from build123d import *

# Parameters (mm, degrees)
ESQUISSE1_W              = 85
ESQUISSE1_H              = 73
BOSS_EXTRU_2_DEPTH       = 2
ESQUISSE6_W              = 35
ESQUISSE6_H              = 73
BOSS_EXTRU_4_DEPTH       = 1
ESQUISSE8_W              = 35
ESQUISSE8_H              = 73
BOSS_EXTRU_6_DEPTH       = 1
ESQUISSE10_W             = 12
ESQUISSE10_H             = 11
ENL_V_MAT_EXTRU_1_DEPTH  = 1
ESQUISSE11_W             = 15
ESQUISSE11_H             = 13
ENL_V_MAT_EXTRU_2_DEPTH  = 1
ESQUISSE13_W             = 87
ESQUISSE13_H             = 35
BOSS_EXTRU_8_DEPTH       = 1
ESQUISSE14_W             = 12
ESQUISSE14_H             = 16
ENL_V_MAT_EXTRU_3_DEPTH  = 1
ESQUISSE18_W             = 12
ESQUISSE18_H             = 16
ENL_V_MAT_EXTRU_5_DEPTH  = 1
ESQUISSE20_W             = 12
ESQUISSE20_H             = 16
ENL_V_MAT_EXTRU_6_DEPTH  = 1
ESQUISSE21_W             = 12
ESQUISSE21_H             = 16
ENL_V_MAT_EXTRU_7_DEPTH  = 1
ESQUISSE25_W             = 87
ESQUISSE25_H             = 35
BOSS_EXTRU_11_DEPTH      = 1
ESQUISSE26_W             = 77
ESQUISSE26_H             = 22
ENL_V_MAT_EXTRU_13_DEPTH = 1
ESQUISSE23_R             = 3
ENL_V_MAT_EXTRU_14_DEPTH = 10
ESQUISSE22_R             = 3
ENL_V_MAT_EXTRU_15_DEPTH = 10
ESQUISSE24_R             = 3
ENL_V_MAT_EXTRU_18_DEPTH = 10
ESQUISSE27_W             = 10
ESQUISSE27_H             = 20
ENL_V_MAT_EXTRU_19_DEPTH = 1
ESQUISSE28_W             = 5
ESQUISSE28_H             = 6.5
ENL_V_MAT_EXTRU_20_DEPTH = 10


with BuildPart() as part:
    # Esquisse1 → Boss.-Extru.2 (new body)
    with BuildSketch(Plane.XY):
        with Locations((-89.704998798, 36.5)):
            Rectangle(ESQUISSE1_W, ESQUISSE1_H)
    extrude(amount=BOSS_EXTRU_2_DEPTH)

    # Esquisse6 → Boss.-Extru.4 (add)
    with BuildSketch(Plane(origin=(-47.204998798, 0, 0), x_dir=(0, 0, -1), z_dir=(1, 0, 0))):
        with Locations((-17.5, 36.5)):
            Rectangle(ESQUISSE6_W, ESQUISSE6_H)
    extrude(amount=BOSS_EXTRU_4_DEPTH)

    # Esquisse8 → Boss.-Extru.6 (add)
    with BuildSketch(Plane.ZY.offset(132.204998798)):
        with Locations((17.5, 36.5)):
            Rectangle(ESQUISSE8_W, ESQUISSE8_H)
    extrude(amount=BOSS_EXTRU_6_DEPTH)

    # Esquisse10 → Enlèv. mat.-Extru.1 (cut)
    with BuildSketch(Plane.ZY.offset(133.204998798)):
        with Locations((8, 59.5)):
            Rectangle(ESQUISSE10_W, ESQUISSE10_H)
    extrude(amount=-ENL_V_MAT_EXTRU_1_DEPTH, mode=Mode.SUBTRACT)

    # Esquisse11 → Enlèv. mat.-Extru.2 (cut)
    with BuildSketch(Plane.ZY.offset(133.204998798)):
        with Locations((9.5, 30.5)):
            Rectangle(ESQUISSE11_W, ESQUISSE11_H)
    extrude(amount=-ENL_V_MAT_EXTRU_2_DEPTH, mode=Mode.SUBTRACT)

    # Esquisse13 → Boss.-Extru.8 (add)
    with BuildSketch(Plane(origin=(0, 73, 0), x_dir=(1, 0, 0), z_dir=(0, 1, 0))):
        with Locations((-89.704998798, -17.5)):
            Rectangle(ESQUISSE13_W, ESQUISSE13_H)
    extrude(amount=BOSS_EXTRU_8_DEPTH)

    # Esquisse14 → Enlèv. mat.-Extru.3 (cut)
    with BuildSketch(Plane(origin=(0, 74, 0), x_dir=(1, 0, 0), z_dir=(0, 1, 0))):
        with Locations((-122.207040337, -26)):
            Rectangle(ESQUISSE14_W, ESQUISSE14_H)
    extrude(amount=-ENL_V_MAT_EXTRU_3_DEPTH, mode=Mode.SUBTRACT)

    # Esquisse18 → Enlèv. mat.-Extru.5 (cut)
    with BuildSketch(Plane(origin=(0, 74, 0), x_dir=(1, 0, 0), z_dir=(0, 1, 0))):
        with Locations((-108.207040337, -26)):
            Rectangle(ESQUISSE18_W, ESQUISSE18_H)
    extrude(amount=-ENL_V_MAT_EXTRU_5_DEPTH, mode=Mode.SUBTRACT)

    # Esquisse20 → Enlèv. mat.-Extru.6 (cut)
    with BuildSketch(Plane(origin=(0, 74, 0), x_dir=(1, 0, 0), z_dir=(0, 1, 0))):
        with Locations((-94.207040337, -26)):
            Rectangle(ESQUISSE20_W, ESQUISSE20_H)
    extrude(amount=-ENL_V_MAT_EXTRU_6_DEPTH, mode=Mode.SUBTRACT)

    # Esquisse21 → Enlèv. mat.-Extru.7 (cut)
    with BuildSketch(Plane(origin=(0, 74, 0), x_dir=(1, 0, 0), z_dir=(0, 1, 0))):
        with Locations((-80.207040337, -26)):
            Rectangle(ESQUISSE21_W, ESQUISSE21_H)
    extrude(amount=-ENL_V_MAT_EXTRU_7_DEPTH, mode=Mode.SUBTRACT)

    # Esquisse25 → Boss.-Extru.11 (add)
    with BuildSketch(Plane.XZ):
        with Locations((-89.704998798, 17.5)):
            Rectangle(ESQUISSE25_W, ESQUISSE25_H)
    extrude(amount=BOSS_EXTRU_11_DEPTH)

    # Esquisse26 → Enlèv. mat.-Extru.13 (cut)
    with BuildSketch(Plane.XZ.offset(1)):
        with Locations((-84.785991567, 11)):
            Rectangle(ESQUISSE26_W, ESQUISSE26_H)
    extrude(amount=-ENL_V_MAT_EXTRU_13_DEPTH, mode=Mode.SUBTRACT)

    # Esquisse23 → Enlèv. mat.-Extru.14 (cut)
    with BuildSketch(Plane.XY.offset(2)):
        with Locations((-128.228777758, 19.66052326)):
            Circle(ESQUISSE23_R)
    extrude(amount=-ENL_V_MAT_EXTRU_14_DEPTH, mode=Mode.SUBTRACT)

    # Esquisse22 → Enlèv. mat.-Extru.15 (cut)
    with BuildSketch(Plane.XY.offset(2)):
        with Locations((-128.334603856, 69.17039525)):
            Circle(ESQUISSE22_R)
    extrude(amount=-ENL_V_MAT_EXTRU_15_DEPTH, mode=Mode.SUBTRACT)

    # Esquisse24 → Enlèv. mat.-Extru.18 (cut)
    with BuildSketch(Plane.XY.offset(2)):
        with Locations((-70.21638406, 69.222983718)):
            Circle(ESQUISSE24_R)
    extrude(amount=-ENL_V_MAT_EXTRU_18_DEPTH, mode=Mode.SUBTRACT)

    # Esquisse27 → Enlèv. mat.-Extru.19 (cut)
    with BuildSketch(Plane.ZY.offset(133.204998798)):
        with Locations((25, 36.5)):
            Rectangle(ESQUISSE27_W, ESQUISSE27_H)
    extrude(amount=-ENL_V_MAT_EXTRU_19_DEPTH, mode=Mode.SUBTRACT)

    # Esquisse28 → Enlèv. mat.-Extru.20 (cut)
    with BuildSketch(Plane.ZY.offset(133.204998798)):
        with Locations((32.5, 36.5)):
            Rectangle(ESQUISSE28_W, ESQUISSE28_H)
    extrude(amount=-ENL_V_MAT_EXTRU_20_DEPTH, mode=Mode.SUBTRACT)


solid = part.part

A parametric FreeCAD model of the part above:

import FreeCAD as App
import Part
import Sketcher
from FreeCAD import Vector
Q = App.Units.Quantity


def add_polygon(sketch, points):
    """Adds a closed chain of lines whose ends are joined by coincident constraints."""
    first, n = sketch.GeometryCount, len(points)
    for a, b in zip(points, points[1:] + points[:1]):
        sketch.addGeometry(Part.LineSegment(App.Vector(*a, 0), App.Vector(*b, 0)), False)
    for i in range(n):
        sketch.addConstraint(Sketcher.Constraint("Coincident", first + i, 2, first + (i + 1) % n, 1))

doc = App.newDocument("Part")
body = doc.addObject("PartDesign::Body", "Body")

# Sketch on XY plane
sketch1 = body.newObject("Sketcher::SketchObject", "Sketch")
sketch1.AttachmentSupport = (doc.getObject("XY_Plane"), [""])
sketch1.MapMode = "FlatFace"
add_polygon(sketch1, [(-132, 73), (-132, 0), (-47, 0), (-47, 73)])  # lines 0-3
sketch1.addConstraint([
    Sketcher.Constraint("Vertical", 0),
    Sketcher.Constraint("Horizontal", 1),
    Sketcher.Constraint("Vertical", 2),
    Sketcher.Constraint("Horizontal", 3),
    Sketcher.Constraint("PointOnObject", 0, 2, -1),
    Sketcher.Constraint("DistanceX", 1, 1, 1, 2, Q("85 mm")),
    Sketcher.Constraint("DistanceY", 0, 2, 0, 1, Q("73 mm")),
    Sketcher.Constraint("DistanceX", 0, 2, -1, 1, Q("132.204999 mm")),
])
pad1 = body.newObject("PartDesign::Pad", "Pad")
pad1.Profile = sketch1
pad1.Length = 2

# Sketch on YZ plane
sketch2 = body.newObject("Sketcher::SketchObject", "Sketch001")
sketch2.AttachmentSupport = (doc.getObject("YZ_Plane"), [""])
sketch2.MapMode = "FlatFace"
sketch2.AttachmentOffset = App.Placement(Vector(0, 0, -47.204999), App.Rotation())
add_polygon(sketch2, [(73, 35), (0, 35), (0, 0), (73, 0)])  # lines 0-3
sketch2.addConstraint([
    Sketcher.Constraint("Horizontal", 0),
    Sketcher.Constraint("Vertical", 1),
    Sketcher.Constraint("Horizontal", 2),
    Sketcher.Constraint("Vertical", 3),
    Sketcher.Constraint("Coincident", 1, 2, -1, 1),
    Sketcher.Constraint("DistanceX", 0, 2, 0, 1, Q("73 mm")),
    Sketcher.Constraint("DistanceY", 1, 2, 1, 1, Q("35 mm")),
])
pad2 = body.newObject("PartDesign::Pad", "Pad001")
pad2.Profile = sketch2
pad2.Length = 1

# Sketch on YZ plane
sketch3 = body.newObject("Sketcher::SketchObject", "Sketch002")
sketch3.AttachmentSupport = (doc.getObject("YZ_Plane"), [""])
sketch3.MapMode = "FlatFace"
sketch3.AttachmentOffset = App.Placement(Vector(0, 0, -132.204999), App.Rotation())
add_polygon(sketch3, [(73, 0), (0, 0), (0, 35), (73, 35)])  # lines 0-3
sketch3.addConstraint([
    Sketcher.Constraint("Horizontal", 0),
    Sketcher.Constraint("Vertical", 1),
    Sketcher.Constraint("Horizontal", 2),
    Sketcher.Constraint("Vertical", 3),
    Sketcher.Constraint("Coincident", 0, 2, -1, 1),
    Sketcher.Constraint("DistanceX", 0, 2, 0, 1, Q("73 mm")),
    Sketcher.Constraint("DistanceY", 1, 1, 1, 2, Q("35 mm")),
])
pad3 = body.newObject("PartDesign::Pad", "Pad002")
pad3.Profile = sketch3
pad3.Length = 1
pad3.Reversed = True

# Sketch on YZ plane
sketch4 = body.newObject("Sketcher::SketchObject", "Sketch003")
sketch4.AttachmentSupport = (doc.getObject("YZ_Plane"), [""])
sketch4.MapMode = "FlatFace"
sketch4.AttachmentOffset = App.Placement(Vector(0, 0, -133.204999), App.Rotation())
add_polygon(sketch4, [(65, 2), (54, 2), (54, 14), (65, 14)])  # lines 0-3
sketch4.addConstraint([
    Sketcher.Constraint("Horizontal", 0),
    Sketcher.Constraint("Vertical", 1),
    Sketcher.Constraint("Horizontal", 2),
    Sketcher.Constraint("Vertical", 3),
    Sketcher.Constraint("DistanceX", 0, 2, 0, 1, Q("11 mm")),
    Sketcher.Constraint("DistanceY", 1, 1, 1, 2, Q("12 mm")),
    Sketcher.Constraint("DistanceX", -1, 1, 0, 2, Q("54 mm")),
    Sketcher.Constraint("DistanceY", -1, 1, 0, 2, Q("2 mm")),
])
pocket1 = body.newObject("PartDesign::Pocket", "Pocket")
pocket1.Profile = sketch4
pocket1.Length = 1
pocket1.Reversed = True

# Sketch on YZ plane
sketch5 = body.newObject("Sketcher::SketchObject", "Sketch004")
sketch5.AttachmentSupport = (doc.getObject("YZ_Plane"), [""])
sketch5.MapMode = "FlatFace"
sketch5.AttachmentOffset = App.Placement(Vector(0, 0, -133.204999), App.Rotation())
add_polygon(sketch5, [(37, 2), (24, 2), (24, 17), (37, 17)])  # lines 0-3
sketch5.addConstraint([
    Sketcher.Constraint("Horizontal", 0),
    Sketcher.Constraint("Vertical", 1),
    Sketcher.Constraint("Horizontal", 2),
    Sketcher.Constraint("Vertical", 3),
    Sketcher.Constraint("DistanceX", 0, 2, 0, 1, Q("13 mm")),
    Sketcher.Constraint("DistanceY", 1, 1, 1, 2, Q("15 mm")),
    Sketcher.Constraint("DistanceX", -1, 1, 0, 2, Q("24 mm")),
    Sketcher.Constraint("DistanceY", -1, 1, 0, 2, Q("2 mm")),
])
pocket2 = body.newObject("PartDesign::Pocket", "Pocket001")
pocket2.Profile = sketch5
pocket2.Length = 1
pocket2.Reversed = True

# Sketch on XZ plane
sketch6 = body.newObject("Sketcher::SketchObject", "Sketch005")
sketch6.AttachmentSupport = (doc.getObject("XZ_Plane"), [""])
sketch6.MapMode = "FlatFace"
sketch6.AttachmentOffset = App.Placement(Vector(0, 0, -73), App.Rotation())
add_polygon(sketch6, [(-133, 0), (-133, 35), (-46, 35), (-46, 0)])  # lines 0-3
sketch6.addConstraint([
    Sketcher.Constraint("Vertical", 0),
    Sketcher.Constraint("Horizontal", 1),
    Sketcher.Constraint("Vertical", 2),
    Sketcher.Constraint("Horizontal", 3),
    Sketcher.Constraint("PointOnObject", 2, 2, -1),
    Sketcher.Constraint("DistanceX", 1, 1, 1, 2, Q("87 mm")),
    Sketcher.Constraint("DistanceY", 0, 1, 0, 2, Q("35 mm")),
    Sketcher.Constraint("DistanceX", 0, 2, -1, 1, Q("133.204999 mm")),
])
pad4 = body.newObject("PartDesign::Pad", "Pad003")
pad4.Profile = sketch6
pad4.Length = 1
pad4.Reversed = True

# Sketch on XZ plane
sketch7 = body.newObject("Sketcher::SketchObject", "Sketch006")
sketch7.AttachmentSupport = (doc.getObject("XZ_Plane"), [""])
sketch7.MapMode = "FlatFace"
sketch7.AttachmentOffset = App.Placement(Vector(0, 0, -74), App.Rotation())
add_polygon(sketch7, [(-128, 18), (-128, 34), (-116, 34), (-116, 18)])  # lines 0-3
sketch7.addConstraint([
    Sketcher.Constraint("Vertical", 0),
    Sketcher.Constraint("Horizontal", 1),
    Sketcher.Constraint("Vertical", 2),
    Sketcher.Constraint("Horizontal", 3),
    Sketcher.Constraint("DistanceX", 1, 1, 1, 2, Q("12 mm")),
    Sketcher.Constraint("DistanceY", 0, 1, 0, 2, Q("16 mm")),
    Sketcher.Constraint("DistanceY", -1, 1, 0, 2, Q("34 mm")),
    Sketcher.Constraint("DistanceX", 0, 2, -1, 1, Q("128.20704 mm")),
])
pocket3 = body.newObject("PartDesign::Pocket", "Pocket002")
pocket3.Profile = sketch7
pocket3.Length = 1
pocket3.Reversed = True

# Sketch on XZ plane
sketch8 = body.newObject("Sketcher::SketchObject", "Sketch007")
sketch8.AttachmentSupport = (doc.getObject("XZ_Plane"), [""])
sketch8.MapMode = "FlatFace"
sketch8.AttachmentOffset = App.Placement(Vector(0, 0, -74), App.Rotation())
add_polygon(sketch8, [(-114, 18), (-114, 34), (-102, 34), (-102, 18)])  # lines 0-3
sketch8.addConstraint([
    Sketcher.Constraint("Vertical", 0),
    Sketcher.Constraint("Horizontal", 1),
    Sketcher.Constraint("Vertical", 2),
    Sketcher.Constraint("Horizontal", 3),
    Sketcher.Constraint("DistanceX", 1, 1, 1, 2, Q("12 mm")),
    Sketcher.Constraint("DistanceY", 0, 1, 0, 2, Q("16 mm")),
    Sketcher.Constraint("DistanceY", -1, 1, 0, 2, Q("34 mm")),
    Sketcher.Constraint("DistanceX", 0, 2, -1, 1, Q("114.20704 mm")),
])
pocket4 = body.newObject("PartDesign::Pocket", "Pocket003")
pocket4.Profile = sketch8
pocket4.Length = 1
pocket4.Reversed = True

# Sketch on XZ plane
sketch9 = body.newObject("Sketcher::SketchObject", "Sketch008")
sketch9.AttachmentSupport = (doc.getObject("XZ_Plane"), [""])
sketch9.MapMode = "FlatFace"
sketch9.AttachmentOffset = App.Placement(Vector(0, 0, -74), App.Rotation())
add_polygon(sketch9, [(-100, 18), (-100, 34), (-88, 34), (-88, 18)])  # lines 0-3
sketch9.addConstraint([
    Sketcher.Constraint("Vertical", 0),
    Sketcher.Constraint("Horizontal", 1),
    Sketcher.Constraint("Vertical", 2),
    Sketcher.Constraint("Horizontal", 3),
    Sketcher.Constraint("DistanceX", 1, 1, 1, 2, Q("12 mm")),
    Sketcher.Constraint("DistanceY", 0, 1, 0, 2, Q("16 mm")),
    Sketcher.Constraint("DistanceY", -1, 1, 0, 2, Q("34 mm")),
    Sketcher.Constraint("DistanceX", 0, 2, -1, 1, Q("100.20704 mm")),
])
pocket5 = body.newObject("PartDesign::Pocket", "Pocket004")
pocket5.Profile = sketch9
pocket5.Length = 1
pocket5.Reversed = True

# Sketch on XZ plane
sketch10 = body.newObject("Sketcher::SketchObject", "Sketch009")
sketch10.AttachmentSupport = (doc.getObject("XZ_Plane"), [""])
sketch10.MapMode = "FlatFace"
sketch10.AttachmentOffset = App.Placement(Vector(0, 0, -74), App.Rotation())
add_polygon(sketch10, [(-86, 18), (-86, 34), (-74, 34), (-74, 18)])  # lines 0-3
sketch10.addConstraint([
    Sketcher.Constraint("Vertical", 0),
    Sketcher.Constraint("Horizontal", 1),
    Sketcher.Constraint("Vertical", 2),
    Sketcher.Constraint("Horizontal", 3),
    Sketcher.Constraint("DistanceX", 1, 1, 1, 2, Q("12 mm")),
    Sketcher.Constraint("DistanceY", 0, 1, 0, 2, Q("16 mm")),
    Sketcher.Constraint("DistanceY", -1, 1, 0, 2, Q("34 mm")),
    Sketcher.Constraint("DistanceX", 0, 2, -1, 1, Q("86.20704 mm")),
])
pocket6 = body.newObject("PartDesign::Pocket", "Pocket005")
pocket6.Profile = sketch10
pocket6.Length = 1
pocket6.Reversed = True

# Sketch on XZ plane
sketch11 = body.newObject("Sketcher::SketchObject", "Sketch010")
sketch11.AttachmentSupport = (doc.getObject("XZ_Plane"), [""])
sketch11.MapMode = "FlatFace"
add_polygon(sketch11, [(-133, 35), (-133, 0), (-46, 0), (-46, 35)])  # lines 0-3
sketch11.addConstraint([
    Sketcher.Constraint("Vertical", 0),
    Sketcher.Constraint("Horizontal", 1),
    Sketcher.Constraint("Vertical", 2),
    Sketcher.Constraint("Horizontal", 3),
    Sketcher.Constraint("PointOnObject", 0, 2, -1),
    Sketcher.Constraint("DistanceX", 1, 1, 1, 2, Q("87 mm")),
    Sketcher.Constraint("DistanceY", 0, 2, 0, 1, Q("35 mm")),
    Sketcher.Constraint("DistanceX", 0, 2, -1, 1, Q("133.204999 mm")),
])
pad5 = body.newObject("PartDesign::Pad", "Pad004")
pad5.Profile = sketch11
pad5.Length = 1

# Sketch on XZ plane
sketch12 = body.newObject("Sketcher::SketchObject", "Sketch011")
sketch12.AttachmentSupport = (doc.getObject("XZ_Plane"), [""])
sketch12.MapMode = "FlatFace"
sketch12.AttachmentOffset = App.Placement(Vector(0, 0, 1), App.Rotation())
add_polygon(sketch12, [(-123, 22), (-123, 0), (-46, 0), (-46, 22)])  # lines 0-3
sketch12.addConstraint([
    Sketcher.Constraint("Vertical", 0),
    Sketcher.Constraint("Horizontal", 1),
    Sketcher.Constraint("Vertical", 2),
    Sketcher.Constraint("Horizontal", 3),
    Sketcher.Constraint("PointOnObject", 0, 2, -1),
    Sketcher.Constraint("DistanceX", 1, 1, 1, 2, Q("77 mm")),
    Sketcher.Constraint("DistanceY", 0, 2, 0, 1, Q("22 mm")),
    Sketcher.Constraint("DistanceX", 0, 2, -1, 1, Q("123.285992 mm")),
])
pocket7 = body.newObject("PartDesign::Pocket", "Pocket006")
pocket7.Profile = sketch12
pocket7.Length = 1

# Sketch on XY plane
sketch13 = body.newObject("Sketcher::SketchObject", "Sketch012")
sketch13.AttachmentSupport = (doc.getObject("XY_Plane"), [""])
sketch13.MapMode = "FlatFace"
sketch13.AttachmentOffset = App.Placement(Vector(0, 0, 2), App.Rotation())
sketch13.addGeometry(Part.Circle(Vector(-128.2, 19.7, 0), Vector(0, 0, 1), 3), False)
sketch13.addConstraint([
    Sketcher.Constraint("Diameter", 0, Q("6 mm")),
    Sketcher.Constraint("DistanceX", 0, 3, -1, 1, Q("128.228778 mm")),
    Sketcher.Constraint("DistanceY", -1, 1, 0, 3, Q("19.660523 mm")),
])
pocket8 = body.newObject("PartDesign::Pocket", "Pocket007")
pocket8.Profile = sketch13
pocket8.Length = 10

# Sketch on XY plane
sketch14 = body.newObject("Sketcher::SketchObject", "Sketch013")
sketch14.AttachmentSupport = (doc.getObject("XY_Plane"), [""])
sketch14.MapMode = "FlatFace"
sketch14.AttachmentOffset = App.Placement(Vector(0, 0, 2), App.Rotation())
sketch14.addGeometry(Part.Circle(Vector(-128.3, 69.2, 0), Vector(0, 0, 1), 3), False)
sketch14.addConstraint([
    Sketcher.Constraint("Diameter", 0, Q("6 mm")),
    Sketcher.Constraint("DistanceX", 0, 3, -1, 1, Q("128.334604 mm")),
    Sketcher.Constraint("DistanceY", -1, 1, 0, 3, Q("69.170395 mm")),
])
pocket9 = body.newObject("PartDesign::Pocket", "Pocket008")
pocket9.Profile = sketch14
pocket9.Length = 10

# Sketch on XY plane
sketch15 = body.newObject("Sketcher::SketchObject", "Sketch014")
sketch15.AttachmentSupport = (doc.getObject("XY_Plane"), [""])
sketch15.MapMode = "FlatFace"
sketch15.AttachmentOffset = App.Placement(Vector(0, 0, 2), App.Rotation())
sketch15.addGeometry(Part.Circle(Vector(-70.2, 69.2, 0), Vector(0, 0, 1), 3), False)
sketch15.addConstraint([
    Sketcher.Constraint("Diameter", 0, Q("6 mm")),
    Sketcher.Constraint("DistanceX", 0, 3, -1, 1, Q("70.216384 mm")),
    Sketcher.Constraint("DistanceY", -1, 1, 0, 3, Q("69.222984 mm")),
])
pocket10 = body.newObject("PartDesign::Pocket", "Pocket009")
pocket10.Profile = sketch15
pocket10.Length = 10

# Sketch on YZ plane
sketch16 = body.newObject("Sketcher::SketchObject", "Sketch015")
sketch16.AttachmentSupport = (doc.getObject("YZ_Plane"), [""])
sketch16.MapMode = "FlatFace"
sketch16.AttachmentOffset = App.Placement(Vector(0, 0, -133.204999), App.Rotation())
add_polygon(sketch16, [(46, 20), (26, 20), (26, 30), (46, 30)])  # lines 0-3
sketch16.addConstraint([
    Sketcher.Constraint("Horizontal", 0),
    Sketcher.Constraint("Vertical", 1),
    Sketcher.Constraint("Horizontal", 2),
    Sketcher.Constraint("Vertical", 3),
    Sketcher.Constraint("DistanceX", 0, 2, 0, 1, Q("20 mm")),
    Sketcher.Constraint("DistanceY", 1, 1, 1, 2, Q("10 mm")),
    Sketcher.Constraint("DistanceY", -1, 1, 0, 2, Q("20 mm")),
    Sketcher.Constraint("DistanceX", -1, 1, 0, 2, Q("26.5 mm")),
])
pocket11 = body.newObject("PartDesign::Pocket", "Pocket010")
pocket11.Profile = sketch16
pocket11.Length = 1
pocket11.Reversed = True

# Sketch on YZ plane
sketch17 = body.newObject("Sketcher::SketchObject", "Sketch016")
sketch17.AttachmentSupport = (doc.getObject("YZ_Plane"), [""])
sketch17.MapMode = "FlatFace"
sketch17.AttachmentOffset = App.Placement(Vector(0, 0, -133.204999), App.Rotation())
add_polygon(sketch17, [(40, 30), (33, 30), (33, 35), (40, 35)])  # lines 0-3
sketch17.addConstraint([
    Sketcher.Constraint("Horizontal", 0),
    Sketcher.Constraint("Vertical", 1),
    Sketcher.Constraint("Horizontal", 2),
    Sketcher.Constraint("Vertical", 3),
    Sketcher.Constraint("DistanceY", 1, 1, 1, 2, Q("5 mm")),
    Sketcher.Constraint("DistanceX", 0, 2, 0, 1, Q("6.5 mm")),
    Sketcher.Constraint("DistanceY", -1, 1, 0, 2, Q("30 mm")),
    Sketcher.Constraint("DistanceX", -1, 1, 0, 2, Q("33.25 mm")),
])
pocket12 = body.newObject("PartDesign::Pocket", "Pocket011")
pocket12.Profile = sketch17
pocket12.Length = 10
pocket12.Reversed = True

doc.recompute()
